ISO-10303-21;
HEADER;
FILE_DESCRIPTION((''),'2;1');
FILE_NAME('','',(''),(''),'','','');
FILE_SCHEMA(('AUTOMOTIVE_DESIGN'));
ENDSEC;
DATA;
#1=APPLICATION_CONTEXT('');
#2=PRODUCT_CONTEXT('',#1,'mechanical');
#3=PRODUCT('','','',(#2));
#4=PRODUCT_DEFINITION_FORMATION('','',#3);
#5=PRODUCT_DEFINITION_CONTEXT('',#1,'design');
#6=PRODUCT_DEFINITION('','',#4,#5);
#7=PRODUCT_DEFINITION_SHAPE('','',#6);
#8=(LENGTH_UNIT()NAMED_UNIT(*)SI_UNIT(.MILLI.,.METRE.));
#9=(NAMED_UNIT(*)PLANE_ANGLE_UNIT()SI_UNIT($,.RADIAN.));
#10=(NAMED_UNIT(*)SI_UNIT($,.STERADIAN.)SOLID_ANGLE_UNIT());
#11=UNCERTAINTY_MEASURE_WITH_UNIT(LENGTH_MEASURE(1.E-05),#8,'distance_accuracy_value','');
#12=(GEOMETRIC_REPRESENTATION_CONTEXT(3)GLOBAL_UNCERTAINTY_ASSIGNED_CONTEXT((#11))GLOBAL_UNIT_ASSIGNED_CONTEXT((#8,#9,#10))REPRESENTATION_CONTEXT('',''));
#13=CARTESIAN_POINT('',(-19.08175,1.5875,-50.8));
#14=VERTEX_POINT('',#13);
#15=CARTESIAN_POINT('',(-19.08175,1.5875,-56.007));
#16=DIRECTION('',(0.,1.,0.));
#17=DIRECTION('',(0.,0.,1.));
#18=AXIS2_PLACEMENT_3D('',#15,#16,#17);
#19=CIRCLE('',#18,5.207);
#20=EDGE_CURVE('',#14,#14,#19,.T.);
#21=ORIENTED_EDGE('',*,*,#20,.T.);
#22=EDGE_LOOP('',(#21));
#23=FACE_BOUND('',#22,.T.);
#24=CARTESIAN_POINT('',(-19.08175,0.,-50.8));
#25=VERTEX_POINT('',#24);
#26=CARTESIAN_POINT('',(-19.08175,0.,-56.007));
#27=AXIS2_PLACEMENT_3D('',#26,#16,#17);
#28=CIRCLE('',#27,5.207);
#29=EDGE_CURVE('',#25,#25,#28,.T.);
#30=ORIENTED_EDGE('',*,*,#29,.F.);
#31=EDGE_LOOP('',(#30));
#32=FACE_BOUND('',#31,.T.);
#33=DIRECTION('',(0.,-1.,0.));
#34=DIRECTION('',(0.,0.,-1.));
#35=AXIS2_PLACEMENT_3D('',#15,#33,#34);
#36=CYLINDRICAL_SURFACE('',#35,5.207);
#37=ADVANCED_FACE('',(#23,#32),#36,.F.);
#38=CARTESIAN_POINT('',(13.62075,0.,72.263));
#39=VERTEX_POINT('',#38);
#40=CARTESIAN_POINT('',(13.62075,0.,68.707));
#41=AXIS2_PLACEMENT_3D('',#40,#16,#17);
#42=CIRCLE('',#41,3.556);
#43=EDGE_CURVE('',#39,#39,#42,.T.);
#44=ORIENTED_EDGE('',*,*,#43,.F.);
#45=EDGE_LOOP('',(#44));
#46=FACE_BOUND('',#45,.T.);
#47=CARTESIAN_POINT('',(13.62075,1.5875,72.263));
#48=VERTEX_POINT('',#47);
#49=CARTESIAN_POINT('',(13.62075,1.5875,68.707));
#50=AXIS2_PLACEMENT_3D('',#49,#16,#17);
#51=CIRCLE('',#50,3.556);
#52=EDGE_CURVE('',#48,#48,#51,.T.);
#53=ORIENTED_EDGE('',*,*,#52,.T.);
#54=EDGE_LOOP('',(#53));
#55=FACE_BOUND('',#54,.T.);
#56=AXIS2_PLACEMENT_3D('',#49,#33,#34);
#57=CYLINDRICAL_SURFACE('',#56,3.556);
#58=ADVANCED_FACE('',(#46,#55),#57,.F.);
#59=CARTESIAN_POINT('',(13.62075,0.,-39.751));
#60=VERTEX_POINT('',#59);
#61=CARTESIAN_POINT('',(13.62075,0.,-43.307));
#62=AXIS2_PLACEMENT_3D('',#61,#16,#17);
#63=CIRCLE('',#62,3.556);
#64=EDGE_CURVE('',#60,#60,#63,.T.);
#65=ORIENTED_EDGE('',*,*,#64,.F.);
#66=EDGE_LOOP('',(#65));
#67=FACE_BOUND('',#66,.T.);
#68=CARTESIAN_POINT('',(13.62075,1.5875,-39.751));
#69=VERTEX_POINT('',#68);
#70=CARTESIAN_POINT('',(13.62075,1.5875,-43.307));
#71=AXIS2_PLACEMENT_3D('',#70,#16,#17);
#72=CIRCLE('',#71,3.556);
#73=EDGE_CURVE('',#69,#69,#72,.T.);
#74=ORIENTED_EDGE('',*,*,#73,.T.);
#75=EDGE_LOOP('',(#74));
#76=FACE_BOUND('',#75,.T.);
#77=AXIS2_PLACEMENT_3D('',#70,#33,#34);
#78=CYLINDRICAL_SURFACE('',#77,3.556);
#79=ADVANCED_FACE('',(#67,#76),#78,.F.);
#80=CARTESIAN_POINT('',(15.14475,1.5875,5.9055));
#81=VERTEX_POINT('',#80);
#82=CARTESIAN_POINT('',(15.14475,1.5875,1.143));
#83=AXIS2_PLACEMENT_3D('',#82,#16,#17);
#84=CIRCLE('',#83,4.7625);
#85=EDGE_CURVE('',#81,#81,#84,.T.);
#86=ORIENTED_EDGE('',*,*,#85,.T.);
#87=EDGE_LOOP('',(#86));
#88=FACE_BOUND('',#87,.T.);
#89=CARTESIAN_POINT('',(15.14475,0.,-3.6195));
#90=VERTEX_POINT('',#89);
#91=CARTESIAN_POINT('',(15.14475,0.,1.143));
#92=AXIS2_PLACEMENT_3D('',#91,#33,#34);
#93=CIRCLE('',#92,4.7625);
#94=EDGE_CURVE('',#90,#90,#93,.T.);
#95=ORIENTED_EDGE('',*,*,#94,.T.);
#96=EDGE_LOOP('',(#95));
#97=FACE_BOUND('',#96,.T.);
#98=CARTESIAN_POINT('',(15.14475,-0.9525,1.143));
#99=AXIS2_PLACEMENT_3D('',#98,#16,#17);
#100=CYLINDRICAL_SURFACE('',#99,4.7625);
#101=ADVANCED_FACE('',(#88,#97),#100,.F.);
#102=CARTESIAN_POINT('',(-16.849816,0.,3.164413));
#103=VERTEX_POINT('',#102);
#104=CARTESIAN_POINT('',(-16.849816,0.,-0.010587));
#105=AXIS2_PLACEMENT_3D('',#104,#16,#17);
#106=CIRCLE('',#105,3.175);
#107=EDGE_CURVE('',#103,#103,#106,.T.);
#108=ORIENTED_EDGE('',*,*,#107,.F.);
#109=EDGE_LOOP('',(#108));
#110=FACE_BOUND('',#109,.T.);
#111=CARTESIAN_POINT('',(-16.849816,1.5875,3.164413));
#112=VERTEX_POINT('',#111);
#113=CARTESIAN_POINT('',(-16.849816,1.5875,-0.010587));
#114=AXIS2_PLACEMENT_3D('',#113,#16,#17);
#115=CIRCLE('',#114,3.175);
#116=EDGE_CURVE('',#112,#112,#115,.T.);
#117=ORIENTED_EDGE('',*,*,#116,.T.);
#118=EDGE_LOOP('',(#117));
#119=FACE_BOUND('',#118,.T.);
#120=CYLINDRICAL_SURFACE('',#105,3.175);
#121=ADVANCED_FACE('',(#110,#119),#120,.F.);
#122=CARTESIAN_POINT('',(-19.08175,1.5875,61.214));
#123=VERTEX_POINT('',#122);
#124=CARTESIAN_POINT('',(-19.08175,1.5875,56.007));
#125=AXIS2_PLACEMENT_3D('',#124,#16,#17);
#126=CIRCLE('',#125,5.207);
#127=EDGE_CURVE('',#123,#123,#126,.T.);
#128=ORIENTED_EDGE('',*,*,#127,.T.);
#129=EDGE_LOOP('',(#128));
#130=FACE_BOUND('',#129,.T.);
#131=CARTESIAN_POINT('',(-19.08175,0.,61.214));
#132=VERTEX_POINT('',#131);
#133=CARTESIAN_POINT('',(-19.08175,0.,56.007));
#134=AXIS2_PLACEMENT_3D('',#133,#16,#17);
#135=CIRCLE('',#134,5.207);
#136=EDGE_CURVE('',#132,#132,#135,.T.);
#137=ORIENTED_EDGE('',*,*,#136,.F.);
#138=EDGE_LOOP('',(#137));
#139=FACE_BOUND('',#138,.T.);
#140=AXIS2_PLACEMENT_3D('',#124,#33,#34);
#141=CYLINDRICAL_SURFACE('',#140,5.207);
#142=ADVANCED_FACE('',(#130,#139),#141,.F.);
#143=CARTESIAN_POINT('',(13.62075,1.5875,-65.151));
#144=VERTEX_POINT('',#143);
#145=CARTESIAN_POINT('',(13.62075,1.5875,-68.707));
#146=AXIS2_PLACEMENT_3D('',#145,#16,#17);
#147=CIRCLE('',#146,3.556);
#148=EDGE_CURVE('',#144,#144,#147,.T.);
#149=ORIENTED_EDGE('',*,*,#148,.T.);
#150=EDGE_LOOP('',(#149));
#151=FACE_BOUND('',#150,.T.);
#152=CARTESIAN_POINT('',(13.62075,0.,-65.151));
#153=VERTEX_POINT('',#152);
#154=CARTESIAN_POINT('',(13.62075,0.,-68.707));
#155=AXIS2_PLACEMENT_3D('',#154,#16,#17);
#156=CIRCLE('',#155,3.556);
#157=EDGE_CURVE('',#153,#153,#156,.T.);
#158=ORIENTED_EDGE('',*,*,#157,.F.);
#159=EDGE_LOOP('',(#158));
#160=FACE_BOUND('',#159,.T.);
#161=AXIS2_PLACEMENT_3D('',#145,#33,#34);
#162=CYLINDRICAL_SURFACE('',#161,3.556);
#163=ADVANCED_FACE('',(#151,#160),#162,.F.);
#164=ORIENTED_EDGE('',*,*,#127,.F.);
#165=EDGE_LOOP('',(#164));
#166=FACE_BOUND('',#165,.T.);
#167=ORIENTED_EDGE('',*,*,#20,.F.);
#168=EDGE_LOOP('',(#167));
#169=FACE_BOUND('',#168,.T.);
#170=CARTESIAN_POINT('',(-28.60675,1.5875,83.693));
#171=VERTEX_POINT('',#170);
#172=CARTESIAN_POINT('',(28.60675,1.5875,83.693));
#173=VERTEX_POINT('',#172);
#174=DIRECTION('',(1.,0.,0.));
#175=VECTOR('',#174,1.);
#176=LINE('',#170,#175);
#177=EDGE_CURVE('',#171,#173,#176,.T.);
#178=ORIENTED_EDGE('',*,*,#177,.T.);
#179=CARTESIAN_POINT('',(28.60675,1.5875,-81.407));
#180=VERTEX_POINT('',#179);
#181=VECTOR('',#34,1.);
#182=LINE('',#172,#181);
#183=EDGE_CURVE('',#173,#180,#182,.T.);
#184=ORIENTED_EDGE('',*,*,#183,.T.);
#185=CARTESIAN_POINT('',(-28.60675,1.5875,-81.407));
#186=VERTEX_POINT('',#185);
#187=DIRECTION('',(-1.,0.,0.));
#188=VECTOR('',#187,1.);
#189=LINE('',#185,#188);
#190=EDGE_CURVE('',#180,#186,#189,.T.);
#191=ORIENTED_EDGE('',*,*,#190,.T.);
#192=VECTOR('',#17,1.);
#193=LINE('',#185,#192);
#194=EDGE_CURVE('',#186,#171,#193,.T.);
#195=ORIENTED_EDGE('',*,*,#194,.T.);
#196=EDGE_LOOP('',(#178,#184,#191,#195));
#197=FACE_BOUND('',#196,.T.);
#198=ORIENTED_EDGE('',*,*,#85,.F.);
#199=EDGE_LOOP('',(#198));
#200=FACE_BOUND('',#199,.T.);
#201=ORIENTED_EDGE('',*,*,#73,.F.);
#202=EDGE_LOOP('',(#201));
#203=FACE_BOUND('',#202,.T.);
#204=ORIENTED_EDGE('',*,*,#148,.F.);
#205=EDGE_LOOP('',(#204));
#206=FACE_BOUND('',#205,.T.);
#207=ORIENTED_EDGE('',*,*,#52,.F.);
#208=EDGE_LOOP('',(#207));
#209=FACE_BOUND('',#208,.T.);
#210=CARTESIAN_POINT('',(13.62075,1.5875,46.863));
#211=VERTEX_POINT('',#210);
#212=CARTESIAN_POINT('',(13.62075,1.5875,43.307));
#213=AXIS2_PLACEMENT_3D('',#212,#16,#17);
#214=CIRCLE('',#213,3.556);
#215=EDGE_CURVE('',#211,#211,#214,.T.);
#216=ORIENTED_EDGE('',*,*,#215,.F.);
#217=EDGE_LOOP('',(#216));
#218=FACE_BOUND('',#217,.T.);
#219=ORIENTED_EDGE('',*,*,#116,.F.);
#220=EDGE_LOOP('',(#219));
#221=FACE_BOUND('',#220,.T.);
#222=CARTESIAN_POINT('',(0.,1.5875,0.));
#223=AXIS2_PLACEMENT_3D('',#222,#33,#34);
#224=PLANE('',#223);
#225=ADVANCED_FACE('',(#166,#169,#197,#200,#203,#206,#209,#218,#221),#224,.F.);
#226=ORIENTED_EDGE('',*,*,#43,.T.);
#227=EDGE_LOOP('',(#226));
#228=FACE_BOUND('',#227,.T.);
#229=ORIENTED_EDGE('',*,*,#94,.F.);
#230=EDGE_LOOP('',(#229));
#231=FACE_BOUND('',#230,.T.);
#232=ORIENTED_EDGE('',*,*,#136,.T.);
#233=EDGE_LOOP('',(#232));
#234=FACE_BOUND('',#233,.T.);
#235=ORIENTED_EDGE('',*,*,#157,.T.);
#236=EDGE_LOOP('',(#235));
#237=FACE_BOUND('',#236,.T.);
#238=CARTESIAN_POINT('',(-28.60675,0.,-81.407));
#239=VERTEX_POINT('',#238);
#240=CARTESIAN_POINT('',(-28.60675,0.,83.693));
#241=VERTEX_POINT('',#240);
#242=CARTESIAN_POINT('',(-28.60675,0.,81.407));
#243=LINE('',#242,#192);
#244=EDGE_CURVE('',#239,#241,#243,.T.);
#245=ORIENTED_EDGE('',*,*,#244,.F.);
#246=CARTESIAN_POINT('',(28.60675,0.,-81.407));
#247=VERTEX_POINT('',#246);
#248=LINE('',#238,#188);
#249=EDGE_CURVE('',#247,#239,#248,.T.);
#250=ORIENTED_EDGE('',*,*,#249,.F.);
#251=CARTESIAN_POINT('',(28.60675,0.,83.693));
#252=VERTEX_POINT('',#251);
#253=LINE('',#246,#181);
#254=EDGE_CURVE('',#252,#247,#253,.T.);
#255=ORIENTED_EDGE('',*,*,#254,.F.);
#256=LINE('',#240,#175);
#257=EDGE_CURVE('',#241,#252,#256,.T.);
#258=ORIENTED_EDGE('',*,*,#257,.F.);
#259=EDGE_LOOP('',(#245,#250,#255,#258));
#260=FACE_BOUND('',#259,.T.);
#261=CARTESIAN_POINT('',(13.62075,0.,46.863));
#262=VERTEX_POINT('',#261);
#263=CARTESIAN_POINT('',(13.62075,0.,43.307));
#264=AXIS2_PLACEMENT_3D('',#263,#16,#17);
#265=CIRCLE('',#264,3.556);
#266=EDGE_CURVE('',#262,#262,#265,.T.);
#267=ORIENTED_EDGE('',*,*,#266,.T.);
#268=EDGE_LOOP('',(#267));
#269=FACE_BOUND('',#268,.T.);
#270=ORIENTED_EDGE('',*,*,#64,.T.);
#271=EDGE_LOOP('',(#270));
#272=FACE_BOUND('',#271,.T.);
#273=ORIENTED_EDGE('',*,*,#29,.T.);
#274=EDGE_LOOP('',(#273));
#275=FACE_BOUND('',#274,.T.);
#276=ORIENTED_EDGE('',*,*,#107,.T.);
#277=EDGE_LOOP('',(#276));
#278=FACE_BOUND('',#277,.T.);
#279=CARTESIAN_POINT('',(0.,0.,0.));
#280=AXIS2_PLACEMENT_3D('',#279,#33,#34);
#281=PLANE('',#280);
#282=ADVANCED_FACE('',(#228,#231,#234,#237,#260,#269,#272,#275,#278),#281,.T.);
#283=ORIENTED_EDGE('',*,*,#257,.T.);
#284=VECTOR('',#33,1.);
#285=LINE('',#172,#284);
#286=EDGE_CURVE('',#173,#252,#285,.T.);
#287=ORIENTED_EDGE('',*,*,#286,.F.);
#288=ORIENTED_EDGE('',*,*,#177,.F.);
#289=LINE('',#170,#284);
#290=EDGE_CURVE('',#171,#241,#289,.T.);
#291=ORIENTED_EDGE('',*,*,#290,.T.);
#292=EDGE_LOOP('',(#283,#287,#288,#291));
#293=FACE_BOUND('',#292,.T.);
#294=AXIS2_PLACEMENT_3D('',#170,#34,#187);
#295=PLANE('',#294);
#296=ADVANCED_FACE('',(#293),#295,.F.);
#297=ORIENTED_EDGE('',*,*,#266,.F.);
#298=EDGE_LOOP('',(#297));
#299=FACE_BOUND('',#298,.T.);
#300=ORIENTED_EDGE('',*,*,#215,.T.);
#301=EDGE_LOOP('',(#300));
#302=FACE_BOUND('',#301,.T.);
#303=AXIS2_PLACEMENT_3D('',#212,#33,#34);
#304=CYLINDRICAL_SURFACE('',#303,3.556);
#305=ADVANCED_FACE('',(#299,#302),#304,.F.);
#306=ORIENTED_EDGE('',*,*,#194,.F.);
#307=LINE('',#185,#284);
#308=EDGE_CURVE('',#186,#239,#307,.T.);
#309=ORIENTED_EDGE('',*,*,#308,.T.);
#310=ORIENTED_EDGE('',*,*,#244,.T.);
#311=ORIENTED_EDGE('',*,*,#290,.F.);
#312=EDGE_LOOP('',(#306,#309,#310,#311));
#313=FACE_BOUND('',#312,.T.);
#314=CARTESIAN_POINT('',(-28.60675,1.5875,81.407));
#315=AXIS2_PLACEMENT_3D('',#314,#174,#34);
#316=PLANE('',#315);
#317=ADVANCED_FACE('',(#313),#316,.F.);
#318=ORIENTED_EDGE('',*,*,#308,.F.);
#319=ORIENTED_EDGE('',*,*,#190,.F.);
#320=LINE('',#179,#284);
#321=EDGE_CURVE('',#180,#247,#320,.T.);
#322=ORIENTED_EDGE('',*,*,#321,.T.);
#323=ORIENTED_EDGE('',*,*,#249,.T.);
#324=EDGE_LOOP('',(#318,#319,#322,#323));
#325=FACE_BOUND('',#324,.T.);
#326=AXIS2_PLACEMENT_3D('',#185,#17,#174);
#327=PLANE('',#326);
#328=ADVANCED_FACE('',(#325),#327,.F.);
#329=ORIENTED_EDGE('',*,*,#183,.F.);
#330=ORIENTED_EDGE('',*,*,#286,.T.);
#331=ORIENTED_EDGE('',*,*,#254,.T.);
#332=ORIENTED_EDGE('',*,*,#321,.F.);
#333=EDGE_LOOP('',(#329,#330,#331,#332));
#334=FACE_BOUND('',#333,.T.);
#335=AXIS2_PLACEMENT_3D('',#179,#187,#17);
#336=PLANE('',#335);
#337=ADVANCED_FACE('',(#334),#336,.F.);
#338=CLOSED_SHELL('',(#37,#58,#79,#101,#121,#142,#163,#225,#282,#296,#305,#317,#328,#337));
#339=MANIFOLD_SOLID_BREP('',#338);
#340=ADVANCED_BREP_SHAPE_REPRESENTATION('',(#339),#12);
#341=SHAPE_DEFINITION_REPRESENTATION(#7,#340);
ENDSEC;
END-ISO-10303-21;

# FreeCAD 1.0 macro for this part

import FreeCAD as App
import Part
import Sketcher
Q = App.Units.Quantity

doc = App.newDocument("Part")
body = doc.addObject("PartDesign::Body", "Body")

sketch1 = doc.addObject("Sketcher::SketchObject", "Sketch")
body.addObject(sketch1)
sketch1.AttachmentSupport = (doc.XZ_Plane, [""])
sketch1.MapMode = "FlatFace"
sketch1.addGeometry([
    Part.LineSegment(App.Vector(28.6, -81.4, 0), App.Vector(-28.6, -81.4, 0)),
    Part.LineSegment(App.Vector(-28.6, -81.4, 0), App.Vector(-28.6, 83.7, 0)),
    Part.LineSegment(App.Vector(-28.6, 83.7, 0), App.Vector(28.6, 83.7, 0)),
    Part.LineSegment(App.Vector(28.6, 83.7, 0), App.Vector(28.6, -81.4, 0)),
    Part.Circle(App.Vector(13.6, 68.7, 0), App.Vector(0, 0, 1), 3.6),
    Part.Circle(App.Vector(13.6, 43.3, 0), App.Vector(0, 0, 1), 3.6),
    Part.Circle(App.Vector(-19.1, 56, 0), App.Vector(0, 0, 1), 5.2),
    Part.Circle(App.Vector(13.6, -43.3, 0), App.Vector(0, 0, 1), 3.6),
    Part.Circle(App.Vector(13.6, -68.7, 0), App.Vector(0, 0, 1), 3.6),
    Part.Circle(App.Vector(-19.1, -56, 0), App.Vector(0, 0, 1), 5.2),
], False)
sketch1.addConstraint([
    Sketcher.Constraint("Coincident", 0, 2, 1, 1),
    Sketcher.Constraint("Coincident", 1, 2, 2, 1),
    Sketcher.Constraint("Coincident", 2, 2, 3, 1),
    Sketcher.Constraint("Coincident", 3, 2, 0, 1),
    Sketcher.Constraint("Horizontal", 0),
    Sketcher.Constraint("Vertical", 1),
    Sketcher.Constraint("Horizontal", 2),
    Sketcher.Constraint("Vertical", 3),
    Sketcher.Constraint("Equal", 4, 5),
    Sketcher.Constraint("Equal", 5, 7),
    Sketcher.Constraint("Equal", 7, 8),
    Sketcher.Constraint("Equal", 6, 9),
    Sketcher.Constraint("Symmetric", 5, 3, 7, 3, -1),
    Sketcher.Constraint("Symmetric", 4, 3, 8, 3, -1),
    Sketcher.Constraint("Symmetric", 6, 3, 9, 3, -1),
    Sketcher.Constraint("Vertical", 4, 3, 5, 3),
    Sketcher.Constraint("Diameter", 4, Q("0.28 in")),
    Sketcher.Constraint("Diameter", 6, Q("0.41 in")),
    Sketcher.Constraint("DistanceY", 1, 1, 1, 2, Q("6.5 in")),
    Sketcher.Constraint("DistanceY", 5, 3, 4, 3, Q("1 in")),
    Sketcher.Constraint("DistanceY", 0, 2, 9, 3, Q("1 in")),
    Sketcher.Constraint("DistanceY", 7, 3, 1, 2, Q("5 in")),
    Sketcher.Constraint("DistanceY", 7, 3, 5, 3, Q("3.41 in")),
    Sketcher.Constraint("DistanceX", 4, 3, 2, 2, Q("0.59 in")),
    Sketcher.Constraint("DistanceX", 0, 2, 0, 1, Q("2.2525 in")),
    Sketcher.Constraint("DistanceX", 0, 2, 9, 3, Q("0.375 in")),
    Sketcher.Constraint("DistanceX", -1, 1, 4, 3, Q("13.62075 mm")),
])
pad1 = doc.addObject("PartDesign::Pad", "Pad")
body.addObject(pad1)
pad1.Profile = sketch1
pad1.Length = Q("0.0625 in")
pad1.Reversed = True

sketch2 = doc.addObject("Sketcher::SketchObject", "Sketch001")
body.addObject(sketch2)
sketch2.AttachmentSupport = (doc.XZ_Plane, [""])
sketch2.MapMode = "FlatFace"
sketch2.AttachmentOffset = App.Placement(App.Vector(0, 0, -0.0625 * 25.4), App.Rotation())
sketch2.addGeometry(Part.Circle(App.Vector(-16.8, 0, 0), App.Vector(0, 0, 1), 3.2), False)
sketch2.addConstraint([
    Sketcher.Constraint("Diameter", 0, Q("0.25 in")),
    Sketcher.Constraint("DistanceX", 0, 3, -1, 1, Q("16.849816 mm")),
    Sketcher.Constraint("DistanceY", 0, 3, -1, 1, Q("0.010587 mm")),
])
pocket1 = doc.addObject("PartDesign::Pocket", "Pocket")
body.addObject(pocket1)
pocket1.Profile = sketch2
pocket1.Type = "ThroughAll"
pocket1.Reversed = True

sketch3 = doc.addObject("Sketcher::SketchObject", "Sketch002")
body.addObject(sketch3)
sketch3.AttachmentSupport = (doc.XZ_Plane, [""])
sketch3.MapMode = "FlatFace"
sketch3.AttachmentOffset = App.Placement(App.Vector(0, 0, -0.0625 * 25.4), App.Rotation())
sketch3.addGeometry(Part.Circle(App.Vector(15.1, 1.1, 0), App.Vector(0, 0, 1), 4.8), False)
sketch3.addConstraint([
    Sketcher.Constraint("Diameter", 0, Q("0.375 in")),
    Sketcher.Constraint("DistanceY", -1, 1, 0, 3, Q("0.045 in")),
    Sketcher.Constraint("DistanceX", -1, 1, 0, 3, Q("15.14475 mm")),
])
pocket2 = doc.addObject("PartDesign::Pocket", "Pocket001")
body.addObject(pocket2)
pocket2.Profile = sketch3
pocket2.Length = Q("0.1 in")
pocket2.Reversed = True

doc.recompute()
